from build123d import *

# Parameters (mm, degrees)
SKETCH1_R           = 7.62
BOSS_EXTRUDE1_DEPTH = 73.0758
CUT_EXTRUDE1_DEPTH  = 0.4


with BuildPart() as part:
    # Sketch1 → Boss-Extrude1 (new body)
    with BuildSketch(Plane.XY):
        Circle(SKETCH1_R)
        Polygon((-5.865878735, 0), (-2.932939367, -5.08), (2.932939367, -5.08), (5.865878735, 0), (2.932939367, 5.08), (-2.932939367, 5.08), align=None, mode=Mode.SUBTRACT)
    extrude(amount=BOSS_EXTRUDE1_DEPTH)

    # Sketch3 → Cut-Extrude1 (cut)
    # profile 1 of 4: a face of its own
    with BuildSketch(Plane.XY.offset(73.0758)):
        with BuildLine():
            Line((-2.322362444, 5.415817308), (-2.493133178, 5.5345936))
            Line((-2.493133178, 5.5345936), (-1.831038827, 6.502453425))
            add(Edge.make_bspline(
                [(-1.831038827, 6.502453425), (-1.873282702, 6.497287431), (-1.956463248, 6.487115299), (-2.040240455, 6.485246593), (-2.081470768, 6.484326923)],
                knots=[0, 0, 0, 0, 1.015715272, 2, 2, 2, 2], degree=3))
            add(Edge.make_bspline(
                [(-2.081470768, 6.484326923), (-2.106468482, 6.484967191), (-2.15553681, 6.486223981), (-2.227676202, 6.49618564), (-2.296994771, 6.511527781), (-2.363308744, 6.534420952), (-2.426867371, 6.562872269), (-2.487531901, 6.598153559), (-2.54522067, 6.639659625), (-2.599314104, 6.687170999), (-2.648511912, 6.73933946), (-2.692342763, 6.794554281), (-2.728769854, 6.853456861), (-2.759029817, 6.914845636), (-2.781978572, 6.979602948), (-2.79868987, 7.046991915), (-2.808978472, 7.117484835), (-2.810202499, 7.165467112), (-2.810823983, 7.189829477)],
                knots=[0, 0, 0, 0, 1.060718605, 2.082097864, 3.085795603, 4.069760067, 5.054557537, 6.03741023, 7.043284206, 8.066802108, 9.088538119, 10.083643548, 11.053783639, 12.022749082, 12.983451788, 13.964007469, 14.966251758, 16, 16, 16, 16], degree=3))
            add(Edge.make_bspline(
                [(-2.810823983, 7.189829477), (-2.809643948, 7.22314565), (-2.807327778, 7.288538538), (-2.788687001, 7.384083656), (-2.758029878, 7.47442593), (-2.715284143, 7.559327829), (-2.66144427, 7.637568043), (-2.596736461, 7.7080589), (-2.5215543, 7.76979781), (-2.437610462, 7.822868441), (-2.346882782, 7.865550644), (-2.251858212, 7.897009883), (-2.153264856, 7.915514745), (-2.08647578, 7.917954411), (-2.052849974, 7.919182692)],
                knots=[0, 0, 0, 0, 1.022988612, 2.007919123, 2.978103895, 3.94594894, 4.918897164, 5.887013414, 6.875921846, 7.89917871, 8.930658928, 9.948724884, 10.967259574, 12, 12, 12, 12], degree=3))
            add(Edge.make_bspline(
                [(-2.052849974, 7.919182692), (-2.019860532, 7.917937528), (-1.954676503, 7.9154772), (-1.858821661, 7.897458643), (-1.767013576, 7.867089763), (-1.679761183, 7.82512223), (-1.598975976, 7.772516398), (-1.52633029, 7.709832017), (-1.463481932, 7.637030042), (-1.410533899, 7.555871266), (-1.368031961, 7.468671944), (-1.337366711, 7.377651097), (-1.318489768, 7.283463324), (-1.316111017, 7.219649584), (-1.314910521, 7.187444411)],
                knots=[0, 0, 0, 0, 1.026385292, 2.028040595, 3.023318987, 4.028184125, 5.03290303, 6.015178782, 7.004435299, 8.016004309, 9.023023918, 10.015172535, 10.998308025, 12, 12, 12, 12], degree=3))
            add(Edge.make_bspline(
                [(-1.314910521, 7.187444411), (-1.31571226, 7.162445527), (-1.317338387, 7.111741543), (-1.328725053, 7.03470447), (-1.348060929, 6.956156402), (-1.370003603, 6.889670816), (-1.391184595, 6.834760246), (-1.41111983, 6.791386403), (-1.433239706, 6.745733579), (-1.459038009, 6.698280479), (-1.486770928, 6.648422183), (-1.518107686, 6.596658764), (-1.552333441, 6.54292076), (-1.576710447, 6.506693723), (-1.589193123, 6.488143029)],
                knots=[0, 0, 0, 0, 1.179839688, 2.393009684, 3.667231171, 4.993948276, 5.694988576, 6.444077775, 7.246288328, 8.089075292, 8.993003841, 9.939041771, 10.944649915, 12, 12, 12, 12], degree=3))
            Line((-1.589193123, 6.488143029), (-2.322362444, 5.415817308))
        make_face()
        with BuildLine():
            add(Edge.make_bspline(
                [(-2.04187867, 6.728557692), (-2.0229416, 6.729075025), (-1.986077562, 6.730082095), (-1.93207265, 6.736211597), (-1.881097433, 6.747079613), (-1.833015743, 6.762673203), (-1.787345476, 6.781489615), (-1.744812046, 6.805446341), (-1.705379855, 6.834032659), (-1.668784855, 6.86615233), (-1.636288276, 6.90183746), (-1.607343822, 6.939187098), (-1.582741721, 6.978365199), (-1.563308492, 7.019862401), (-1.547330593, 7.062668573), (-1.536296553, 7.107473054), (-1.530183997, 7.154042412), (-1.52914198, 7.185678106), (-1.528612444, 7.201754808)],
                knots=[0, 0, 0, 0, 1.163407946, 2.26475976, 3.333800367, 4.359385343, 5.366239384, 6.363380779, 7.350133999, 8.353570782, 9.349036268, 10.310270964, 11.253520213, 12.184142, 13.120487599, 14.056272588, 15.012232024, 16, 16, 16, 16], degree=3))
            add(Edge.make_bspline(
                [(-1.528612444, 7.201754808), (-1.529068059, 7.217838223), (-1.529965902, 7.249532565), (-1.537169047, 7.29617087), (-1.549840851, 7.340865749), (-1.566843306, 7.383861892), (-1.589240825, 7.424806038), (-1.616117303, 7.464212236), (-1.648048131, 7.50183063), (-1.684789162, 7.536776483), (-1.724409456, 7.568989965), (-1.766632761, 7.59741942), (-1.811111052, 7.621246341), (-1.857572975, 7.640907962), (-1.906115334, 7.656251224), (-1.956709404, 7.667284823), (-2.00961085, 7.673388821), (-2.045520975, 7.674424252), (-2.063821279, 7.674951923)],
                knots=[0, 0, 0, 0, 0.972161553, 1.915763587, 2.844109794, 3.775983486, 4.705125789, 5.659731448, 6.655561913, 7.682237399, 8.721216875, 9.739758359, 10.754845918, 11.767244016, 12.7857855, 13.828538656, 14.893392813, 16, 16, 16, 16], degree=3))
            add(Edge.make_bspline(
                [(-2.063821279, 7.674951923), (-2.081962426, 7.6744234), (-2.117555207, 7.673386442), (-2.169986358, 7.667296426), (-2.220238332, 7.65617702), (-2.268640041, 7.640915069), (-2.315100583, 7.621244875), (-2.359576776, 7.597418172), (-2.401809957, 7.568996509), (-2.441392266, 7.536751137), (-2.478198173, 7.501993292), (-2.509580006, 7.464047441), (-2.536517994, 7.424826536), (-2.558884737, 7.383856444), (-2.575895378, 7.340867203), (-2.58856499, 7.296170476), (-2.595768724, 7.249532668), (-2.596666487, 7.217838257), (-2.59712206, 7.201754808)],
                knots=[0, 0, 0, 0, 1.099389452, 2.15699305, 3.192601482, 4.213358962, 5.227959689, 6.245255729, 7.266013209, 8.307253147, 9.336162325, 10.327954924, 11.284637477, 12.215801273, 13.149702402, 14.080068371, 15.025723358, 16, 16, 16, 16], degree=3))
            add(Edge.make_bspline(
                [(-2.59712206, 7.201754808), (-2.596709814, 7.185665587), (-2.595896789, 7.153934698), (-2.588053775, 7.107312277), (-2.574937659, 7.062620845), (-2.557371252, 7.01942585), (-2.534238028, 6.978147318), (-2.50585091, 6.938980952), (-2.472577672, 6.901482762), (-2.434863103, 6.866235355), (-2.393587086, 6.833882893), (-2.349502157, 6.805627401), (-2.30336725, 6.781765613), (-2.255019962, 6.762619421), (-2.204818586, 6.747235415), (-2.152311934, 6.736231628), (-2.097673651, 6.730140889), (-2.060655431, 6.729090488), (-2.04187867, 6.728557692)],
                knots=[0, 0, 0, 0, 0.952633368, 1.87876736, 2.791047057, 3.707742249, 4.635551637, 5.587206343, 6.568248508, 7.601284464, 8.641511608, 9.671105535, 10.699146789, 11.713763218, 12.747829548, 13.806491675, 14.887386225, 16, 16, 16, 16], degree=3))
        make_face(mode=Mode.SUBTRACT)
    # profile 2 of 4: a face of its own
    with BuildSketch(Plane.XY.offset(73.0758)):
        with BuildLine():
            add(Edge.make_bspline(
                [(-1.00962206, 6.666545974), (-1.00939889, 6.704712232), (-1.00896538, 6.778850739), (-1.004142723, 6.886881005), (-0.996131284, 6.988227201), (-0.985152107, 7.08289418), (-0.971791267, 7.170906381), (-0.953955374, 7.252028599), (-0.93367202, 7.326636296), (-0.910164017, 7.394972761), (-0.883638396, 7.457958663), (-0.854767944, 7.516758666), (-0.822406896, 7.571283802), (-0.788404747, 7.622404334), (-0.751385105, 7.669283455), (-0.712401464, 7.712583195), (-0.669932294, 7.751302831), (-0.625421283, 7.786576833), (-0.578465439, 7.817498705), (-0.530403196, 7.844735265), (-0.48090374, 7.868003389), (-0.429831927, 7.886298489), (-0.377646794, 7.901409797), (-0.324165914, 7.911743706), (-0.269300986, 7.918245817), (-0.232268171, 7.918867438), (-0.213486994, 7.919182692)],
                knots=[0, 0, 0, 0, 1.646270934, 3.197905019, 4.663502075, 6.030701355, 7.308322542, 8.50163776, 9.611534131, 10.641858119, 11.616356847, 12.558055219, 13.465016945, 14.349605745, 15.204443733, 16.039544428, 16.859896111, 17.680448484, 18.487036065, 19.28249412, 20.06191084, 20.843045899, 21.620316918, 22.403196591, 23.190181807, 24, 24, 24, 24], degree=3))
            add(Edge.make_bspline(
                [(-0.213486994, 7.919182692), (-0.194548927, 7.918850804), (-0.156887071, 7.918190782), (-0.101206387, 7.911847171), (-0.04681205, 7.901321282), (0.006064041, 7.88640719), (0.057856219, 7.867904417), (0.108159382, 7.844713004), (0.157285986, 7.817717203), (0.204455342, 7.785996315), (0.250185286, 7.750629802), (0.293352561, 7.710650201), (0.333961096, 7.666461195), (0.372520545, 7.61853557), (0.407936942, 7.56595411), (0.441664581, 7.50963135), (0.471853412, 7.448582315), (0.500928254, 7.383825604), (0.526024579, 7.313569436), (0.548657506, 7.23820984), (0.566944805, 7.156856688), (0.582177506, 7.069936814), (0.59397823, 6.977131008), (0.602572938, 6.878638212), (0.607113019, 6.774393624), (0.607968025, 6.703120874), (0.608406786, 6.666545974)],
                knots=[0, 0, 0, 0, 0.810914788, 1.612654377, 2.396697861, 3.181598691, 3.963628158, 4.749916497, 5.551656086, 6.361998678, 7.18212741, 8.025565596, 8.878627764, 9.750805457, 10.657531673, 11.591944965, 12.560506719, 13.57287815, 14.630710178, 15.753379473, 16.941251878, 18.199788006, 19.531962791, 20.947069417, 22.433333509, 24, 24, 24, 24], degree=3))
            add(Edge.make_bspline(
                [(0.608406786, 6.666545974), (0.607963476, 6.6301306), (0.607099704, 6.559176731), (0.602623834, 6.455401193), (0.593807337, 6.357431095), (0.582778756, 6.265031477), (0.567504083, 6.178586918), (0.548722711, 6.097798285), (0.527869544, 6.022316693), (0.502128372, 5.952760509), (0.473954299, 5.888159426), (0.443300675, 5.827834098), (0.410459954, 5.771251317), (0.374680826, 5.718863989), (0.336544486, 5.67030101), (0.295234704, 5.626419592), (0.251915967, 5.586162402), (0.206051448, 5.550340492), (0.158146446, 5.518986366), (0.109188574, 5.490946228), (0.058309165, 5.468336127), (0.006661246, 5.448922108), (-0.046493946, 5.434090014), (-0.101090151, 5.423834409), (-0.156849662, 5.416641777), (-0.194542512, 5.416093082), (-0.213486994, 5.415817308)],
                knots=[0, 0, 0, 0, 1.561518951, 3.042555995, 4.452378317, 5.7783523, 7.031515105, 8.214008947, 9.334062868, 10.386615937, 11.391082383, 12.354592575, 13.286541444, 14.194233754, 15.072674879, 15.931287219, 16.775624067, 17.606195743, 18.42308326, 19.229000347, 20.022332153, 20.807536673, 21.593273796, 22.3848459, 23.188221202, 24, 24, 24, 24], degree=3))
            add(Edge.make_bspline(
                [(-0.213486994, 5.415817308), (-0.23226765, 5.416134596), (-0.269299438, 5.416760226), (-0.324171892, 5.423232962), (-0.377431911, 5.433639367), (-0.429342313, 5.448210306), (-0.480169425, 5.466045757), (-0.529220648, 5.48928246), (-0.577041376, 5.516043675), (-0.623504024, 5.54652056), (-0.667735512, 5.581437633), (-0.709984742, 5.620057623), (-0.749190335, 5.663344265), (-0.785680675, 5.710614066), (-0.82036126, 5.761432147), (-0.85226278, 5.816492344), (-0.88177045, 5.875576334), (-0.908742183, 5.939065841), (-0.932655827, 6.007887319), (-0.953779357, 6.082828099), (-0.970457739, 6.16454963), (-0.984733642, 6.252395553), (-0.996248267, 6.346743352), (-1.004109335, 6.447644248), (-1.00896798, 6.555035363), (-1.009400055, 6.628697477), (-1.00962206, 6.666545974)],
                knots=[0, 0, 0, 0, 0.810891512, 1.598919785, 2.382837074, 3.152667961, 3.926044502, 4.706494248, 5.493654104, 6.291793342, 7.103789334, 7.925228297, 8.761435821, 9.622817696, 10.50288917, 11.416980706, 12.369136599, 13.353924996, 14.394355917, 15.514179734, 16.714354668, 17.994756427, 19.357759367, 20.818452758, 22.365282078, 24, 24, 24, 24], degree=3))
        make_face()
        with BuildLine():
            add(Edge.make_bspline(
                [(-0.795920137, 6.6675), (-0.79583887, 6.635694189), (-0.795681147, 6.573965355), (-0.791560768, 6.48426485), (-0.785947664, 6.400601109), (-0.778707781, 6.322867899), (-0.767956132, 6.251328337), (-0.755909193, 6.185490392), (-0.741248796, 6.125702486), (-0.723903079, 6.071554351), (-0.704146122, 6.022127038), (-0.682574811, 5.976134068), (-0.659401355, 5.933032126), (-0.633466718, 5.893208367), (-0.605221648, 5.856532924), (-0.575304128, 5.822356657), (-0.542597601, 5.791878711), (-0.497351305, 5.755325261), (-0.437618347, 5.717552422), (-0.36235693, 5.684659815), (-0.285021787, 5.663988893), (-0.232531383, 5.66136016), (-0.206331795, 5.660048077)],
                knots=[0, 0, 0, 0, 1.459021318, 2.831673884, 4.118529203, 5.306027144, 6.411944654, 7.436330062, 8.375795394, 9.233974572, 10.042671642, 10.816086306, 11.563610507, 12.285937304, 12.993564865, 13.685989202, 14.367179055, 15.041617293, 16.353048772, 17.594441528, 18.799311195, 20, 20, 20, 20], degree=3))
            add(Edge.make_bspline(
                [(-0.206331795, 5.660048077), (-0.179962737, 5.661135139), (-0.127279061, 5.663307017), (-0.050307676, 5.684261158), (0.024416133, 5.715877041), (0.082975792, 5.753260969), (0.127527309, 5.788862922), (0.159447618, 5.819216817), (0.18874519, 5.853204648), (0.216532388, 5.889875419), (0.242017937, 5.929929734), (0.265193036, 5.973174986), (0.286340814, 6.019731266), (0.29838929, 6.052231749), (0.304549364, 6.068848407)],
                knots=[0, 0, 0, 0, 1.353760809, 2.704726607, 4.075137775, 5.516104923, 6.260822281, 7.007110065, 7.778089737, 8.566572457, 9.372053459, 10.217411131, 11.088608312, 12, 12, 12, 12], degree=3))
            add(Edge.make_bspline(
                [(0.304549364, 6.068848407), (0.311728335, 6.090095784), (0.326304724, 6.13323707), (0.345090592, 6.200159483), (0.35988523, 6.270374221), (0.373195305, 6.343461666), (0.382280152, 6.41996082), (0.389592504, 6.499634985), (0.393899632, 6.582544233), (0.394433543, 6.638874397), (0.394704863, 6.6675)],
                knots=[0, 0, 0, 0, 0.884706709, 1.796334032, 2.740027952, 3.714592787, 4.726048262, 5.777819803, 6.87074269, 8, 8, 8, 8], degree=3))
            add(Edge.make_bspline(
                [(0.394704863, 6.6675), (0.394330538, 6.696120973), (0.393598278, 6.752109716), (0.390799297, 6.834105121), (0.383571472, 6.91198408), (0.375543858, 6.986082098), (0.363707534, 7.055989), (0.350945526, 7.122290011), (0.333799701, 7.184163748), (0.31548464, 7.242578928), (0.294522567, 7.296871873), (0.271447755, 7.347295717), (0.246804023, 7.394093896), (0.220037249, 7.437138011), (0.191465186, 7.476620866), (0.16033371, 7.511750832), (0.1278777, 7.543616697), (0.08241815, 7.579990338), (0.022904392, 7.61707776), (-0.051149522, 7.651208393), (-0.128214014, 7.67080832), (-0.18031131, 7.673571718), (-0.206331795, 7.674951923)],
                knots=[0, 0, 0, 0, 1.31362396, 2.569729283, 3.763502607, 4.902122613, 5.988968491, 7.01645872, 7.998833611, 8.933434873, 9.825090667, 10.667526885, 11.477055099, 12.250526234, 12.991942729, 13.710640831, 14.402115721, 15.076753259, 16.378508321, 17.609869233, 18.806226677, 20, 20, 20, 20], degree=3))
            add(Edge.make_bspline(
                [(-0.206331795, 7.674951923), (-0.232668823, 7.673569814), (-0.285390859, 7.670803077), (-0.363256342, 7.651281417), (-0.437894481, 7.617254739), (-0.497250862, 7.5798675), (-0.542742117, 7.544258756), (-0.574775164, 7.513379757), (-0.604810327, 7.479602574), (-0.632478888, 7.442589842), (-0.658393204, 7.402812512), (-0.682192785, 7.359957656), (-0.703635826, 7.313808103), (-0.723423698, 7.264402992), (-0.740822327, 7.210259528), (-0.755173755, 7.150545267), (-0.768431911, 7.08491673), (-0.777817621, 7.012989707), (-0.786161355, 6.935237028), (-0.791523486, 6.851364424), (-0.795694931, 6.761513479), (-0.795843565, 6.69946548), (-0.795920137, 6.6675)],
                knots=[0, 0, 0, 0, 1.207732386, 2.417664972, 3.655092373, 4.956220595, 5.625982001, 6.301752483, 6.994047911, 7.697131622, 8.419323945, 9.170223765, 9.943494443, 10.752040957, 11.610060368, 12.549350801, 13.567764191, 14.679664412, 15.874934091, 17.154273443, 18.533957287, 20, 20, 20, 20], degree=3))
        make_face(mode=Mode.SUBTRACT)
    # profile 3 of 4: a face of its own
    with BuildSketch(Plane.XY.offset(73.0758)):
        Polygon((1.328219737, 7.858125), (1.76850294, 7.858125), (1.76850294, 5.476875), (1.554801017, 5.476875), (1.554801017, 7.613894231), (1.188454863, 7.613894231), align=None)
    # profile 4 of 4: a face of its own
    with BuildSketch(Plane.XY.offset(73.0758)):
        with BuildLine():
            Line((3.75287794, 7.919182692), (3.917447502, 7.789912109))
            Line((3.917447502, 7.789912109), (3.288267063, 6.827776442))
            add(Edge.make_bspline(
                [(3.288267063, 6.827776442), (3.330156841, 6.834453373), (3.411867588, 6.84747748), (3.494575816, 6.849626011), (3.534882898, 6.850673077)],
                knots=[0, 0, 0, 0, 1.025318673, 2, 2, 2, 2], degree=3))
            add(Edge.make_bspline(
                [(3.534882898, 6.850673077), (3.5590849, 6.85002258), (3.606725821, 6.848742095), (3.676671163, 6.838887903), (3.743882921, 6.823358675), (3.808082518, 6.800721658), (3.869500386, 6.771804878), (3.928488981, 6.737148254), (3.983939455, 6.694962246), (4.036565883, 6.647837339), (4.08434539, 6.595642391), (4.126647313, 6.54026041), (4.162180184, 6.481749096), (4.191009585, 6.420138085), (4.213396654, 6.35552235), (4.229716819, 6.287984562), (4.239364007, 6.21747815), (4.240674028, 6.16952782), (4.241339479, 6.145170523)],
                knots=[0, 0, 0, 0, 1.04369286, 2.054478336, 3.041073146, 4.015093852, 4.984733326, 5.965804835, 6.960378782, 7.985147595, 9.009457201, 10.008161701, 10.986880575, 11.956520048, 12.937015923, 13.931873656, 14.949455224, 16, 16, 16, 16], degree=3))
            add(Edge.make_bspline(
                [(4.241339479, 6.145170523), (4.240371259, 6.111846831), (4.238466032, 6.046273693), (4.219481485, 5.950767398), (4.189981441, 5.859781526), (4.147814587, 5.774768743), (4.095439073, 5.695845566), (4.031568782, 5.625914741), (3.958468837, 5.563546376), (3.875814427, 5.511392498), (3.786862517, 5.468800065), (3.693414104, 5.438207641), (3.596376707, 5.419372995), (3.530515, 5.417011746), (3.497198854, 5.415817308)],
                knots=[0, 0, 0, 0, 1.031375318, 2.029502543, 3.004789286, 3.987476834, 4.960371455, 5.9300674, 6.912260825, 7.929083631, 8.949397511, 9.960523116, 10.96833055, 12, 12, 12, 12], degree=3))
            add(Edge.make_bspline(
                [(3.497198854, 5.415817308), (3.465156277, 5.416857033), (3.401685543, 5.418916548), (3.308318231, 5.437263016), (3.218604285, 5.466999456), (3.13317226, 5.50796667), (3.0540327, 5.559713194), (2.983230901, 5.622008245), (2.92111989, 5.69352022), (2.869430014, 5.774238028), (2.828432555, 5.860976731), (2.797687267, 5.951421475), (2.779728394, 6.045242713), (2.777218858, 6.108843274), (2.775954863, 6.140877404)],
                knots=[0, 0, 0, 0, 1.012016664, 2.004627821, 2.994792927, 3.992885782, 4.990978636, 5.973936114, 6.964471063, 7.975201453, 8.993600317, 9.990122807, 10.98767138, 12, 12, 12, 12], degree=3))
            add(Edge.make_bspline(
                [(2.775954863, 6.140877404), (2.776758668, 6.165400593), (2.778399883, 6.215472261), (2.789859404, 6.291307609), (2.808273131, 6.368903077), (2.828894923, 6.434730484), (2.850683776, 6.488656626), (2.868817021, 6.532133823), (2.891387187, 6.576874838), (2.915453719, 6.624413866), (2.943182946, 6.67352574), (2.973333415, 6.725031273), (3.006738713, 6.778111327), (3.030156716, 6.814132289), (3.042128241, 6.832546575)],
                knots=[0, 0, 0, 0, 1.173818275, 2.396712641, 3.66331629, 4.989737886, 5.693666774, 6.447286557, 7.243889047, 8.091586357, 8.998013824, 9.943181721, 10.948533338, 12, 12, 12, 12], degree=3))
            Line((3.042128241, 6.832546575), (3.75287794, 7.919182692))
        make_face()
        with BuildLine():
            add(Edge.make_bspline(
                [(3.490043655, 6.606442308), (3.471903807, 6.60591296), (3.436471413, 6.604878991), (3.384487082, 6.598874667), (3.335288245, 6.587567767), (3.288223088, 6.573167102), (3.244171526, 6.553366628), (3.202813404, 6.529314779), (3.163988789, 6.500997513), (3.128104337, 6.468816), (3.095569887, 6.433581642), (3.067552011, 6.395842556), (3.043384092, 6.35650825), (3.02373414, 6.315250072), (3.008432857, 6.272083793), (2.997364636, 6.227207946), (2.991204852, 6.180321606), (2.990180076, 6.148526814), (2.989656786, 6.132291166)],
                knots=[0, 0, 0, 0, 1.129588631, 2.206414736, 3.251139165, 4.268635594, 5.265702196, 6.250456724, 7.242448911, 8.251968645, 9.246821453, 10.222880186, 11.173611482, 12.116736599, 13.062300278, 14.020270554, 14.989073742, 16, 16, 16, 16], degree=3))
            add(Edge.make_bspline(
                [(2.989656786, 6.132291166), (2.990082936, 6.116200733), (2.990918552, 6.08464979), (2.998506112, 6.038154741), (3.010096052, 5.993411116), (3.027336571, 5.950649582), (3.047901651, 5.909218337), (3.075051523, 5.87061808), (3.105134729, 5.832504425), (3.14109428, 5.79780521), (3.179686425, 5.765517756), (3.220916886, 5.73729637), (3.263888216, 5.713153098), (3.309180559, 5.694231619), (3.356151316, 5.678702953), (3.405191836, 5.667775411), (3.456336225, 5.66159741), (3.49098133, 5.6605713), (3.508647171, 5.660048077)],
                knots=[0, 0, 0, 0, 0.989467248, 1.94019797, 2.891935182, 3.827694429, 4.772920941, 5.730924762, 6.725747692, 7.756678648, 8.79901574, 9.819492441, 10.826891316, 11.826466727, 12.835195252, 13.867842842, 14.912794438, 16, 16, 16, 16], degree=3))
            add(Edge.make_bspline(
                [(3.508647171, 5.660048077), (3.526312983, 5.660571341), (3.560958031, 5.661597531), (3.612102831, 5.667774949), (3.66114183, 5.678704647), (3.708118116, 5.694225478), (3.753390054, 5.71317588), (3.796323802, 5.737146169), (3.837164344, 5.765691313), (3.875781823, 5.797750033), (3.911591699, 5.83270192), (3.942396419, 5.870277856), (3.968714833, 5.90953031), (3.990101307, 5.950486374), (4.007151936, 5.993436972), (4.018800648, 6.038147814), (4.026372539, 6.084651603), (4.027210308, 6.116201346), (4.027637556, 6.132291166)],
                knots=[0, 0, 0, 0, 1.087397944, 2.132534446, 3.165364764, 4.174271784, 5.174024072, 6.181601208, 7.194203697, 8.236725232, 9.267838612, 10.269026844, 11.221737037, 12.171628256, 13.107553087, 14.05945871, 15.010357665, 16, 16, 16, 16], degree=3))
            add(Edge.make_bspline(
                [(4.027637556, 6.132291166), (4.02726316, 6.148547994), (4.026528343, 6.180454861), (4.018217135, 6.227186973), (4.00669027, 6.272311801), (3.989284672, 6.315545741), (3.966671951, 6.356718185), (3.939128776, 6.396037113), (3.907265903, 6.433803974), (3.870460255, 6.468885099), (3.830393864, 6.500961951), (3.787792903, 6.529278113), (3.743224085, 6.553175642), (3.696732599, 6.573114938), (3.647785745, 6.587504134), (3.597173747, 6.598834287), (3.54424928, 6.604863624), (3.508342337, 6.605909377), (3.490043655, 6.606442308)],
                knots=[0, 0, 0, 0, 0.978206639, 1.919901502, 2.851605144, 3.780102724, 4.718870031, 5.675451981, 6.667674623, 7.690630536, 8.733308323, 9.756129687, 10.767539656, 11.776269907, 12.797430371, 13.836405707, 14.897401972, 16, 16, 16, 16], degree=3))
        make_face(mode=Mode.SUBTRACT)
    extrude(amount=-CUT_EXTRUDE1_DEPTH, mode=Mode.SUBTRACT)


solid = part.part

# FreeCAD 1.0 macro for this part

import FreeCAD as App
import Part
import Sketcher
from FreeCAD import Vector
Q = App.Units.Quantity

doc = App.newDocument("Part")
body = doc.addObject("PartDesign::Body", "Body")

# Sketch on XY plane
sketch1 = body.newObject("Sketcher::SketchObject", "Sketch")
sketch1.AttachmentSupport = (doc.getObject("XY_Plane"), [""])
sketch1.MapMode = "FlatFace"
sketch1.addGeometry([
    Part.Circle(Vector(0, 0, 0), Vector(0, 0, 1), 7.62),  # 0
    Part.LineSegment(Vector(-2.932939, -5.08, 0), Vector(-5.865879, 0, 0)),  # 1
    Part.LineSegment(Vector(-5.865879, 0, 0), Vector(-2.932939, 5.08, 0)),  # 2
    Part.LineSegment(Vector(-2.932939, 5.08, 0), Vector(2.932939, 5.08, 0)),  # 3
    Part.LineSegment(Vector(2.932939, 5.08, 0), Vector(5.865879, 0, 0)),  # 4
    Part.LineSegment(Vector(5.865879, 0, 0), Vector(2.932939, -5.08, 0)),  # 5
    Part.LineSegment(Vector(2.932939, -5.08, 0), Vector(-2.932939, -5.08, 0)),  # 6
], False)
sketch1.addConstraint([
    Sketcher.Constraint("Coincident", 1, 2, 2, 1),
    Sketcher.Constraint("Coincident", 2, 2, 3, 1),
    Sketcher.Constraint("Coincident", 3, 2, 4, 1),
    Sketcher.Constraint("Coincident", 4, 2, 5, 1),
    Sketcher.Constraint("Coincident", 5, 2, 6, 1),
    Sketcher.Constraint("Coincident", 6, 2, 1, 1),
    Sketcher.Constraint("Horizontal", 3),
    Sketcher.Constraint("Horizontal", 6),
    Sketcher.Constraint("Coincident", 0, 3, -1, 1),
    Sketcher.Constraint("Symmetric", 1, 2, 4, 2, -1, 1),
    Sketcher.Constraint("Symmetric", 2, 2, 5, 2, -1, 1),
    Sketcher.Constraint("PointOnObject", 1, 2, -1),
    Sketcher.Constraint("Parallel", 1, 4),
    Sketcher.Constraint("Vertical", 3, 2, 5, 2),
    Sketcher.Constraint("Diameter", 0, Q("0.6 in")),
    Sketcher.Constraint("Angle", 1, Q("120 deg")),
    Sketcher.Constraint("DistanceY", -1, 1, 2, 2, Q("0.2 in")),
    Sketcher.Constraint("DistanceX", 3, 1, 3, 2, Q("5.865879 mm")),
])
pad1 = body.newObject("PartDesign::Pad", "Pad")
pad1.Profile = sketch1
pad1.Length = Q("2.877 in")

# Sketch on XY plane
sketch2 = body.newObject("Sketcher::SketchObject", "Sketch001")
sketch2.AttachmentSupport = (doc.getObject("XY_Plane"), [""])
sketch2.MapMode = "FlatFace"
sketch2.AttachmentOffset = App.Placement(Vector(0, 0, 2.877 * 25.4), App.Rotation())
sketch2.addGeometry([
    Part.LineSegment(Vector(-2.493133, 5.534594, 0), Vector(-2.322362, 5.415817, 0)),  # 0
    Part.LineSegment(Vector(-2.322362, 5.415817, 0), Vector(-1.589193, 6.488143, 0)),  # 1
    Part.BSplineCurve([Vector(-1.314911, 7.187444, 0), Vector(-1.315712, 7.162446, 0), Vector(-1.317338, 7.111742, 0), Vector(-1.328725, 7.034704, 0), Vector(-1.348061, 6.956156, 0), Vector(-1.370004, 6.889671, 0), Vector(-1.391185, 6.83476, 0), Vector(-1.41112, 6.791386, 0), Vector(-1.43324, 6.745734, 0), Vector(-1.459038, 6.69828, 0), Vector(-1.486771, 6.648422, 0), Vector(-1.518108, 6.596659, 0), Vector(-1.552333, 6.542921, 0), Vector(-1.57671, 6.506694, 0), Vector(-1.589193, 6.488143, 0)], [4, 1, 1, 1, 1, 1, 1, 1, 1, 1, 1, 1, 4], [0, 1.179839688, 2.393009684, 3.667231171, 4.993948276, 5.694988576, 6.444077775, 7.246288328, 8.089075292, 8.993003841, 9.939041771, 10.944649915, 12], False, 3, [1, 1, 1, 1, 1, 1, 1, 1, 1, 1, 1, 1, 1, 1, 1], False),  # 2
    Part.BSplineCurve([Vector(-2.05285, 7.919183, 0), Vector(-2.019861, 7.917938, 0), Vector(-1.954677, 7.915477, 0), Vector(-1.858822, 7.897459, 0), Vector(-1.767014, 7.86709, 0), Vector(-1.679761, 7.825122, 0), Vector(-1.598976, 7.772516, 0), Vector(-1.52633, 7.709832, 0), Vector(-1.463482, 7.63703, 0), Vector(-1.410534, 7.555871, 0), Vector(-1.368032, 7.468672, 0), Vector(-1.337367, 7.377651, 0), Vector(-1.31849, 7.283463, 0), Vector(-1.316111, 7.21965, 0), Vector(-1.314911, 7.187444, 0)], [4, 1, 1, 1, 1, 1, 1, 1, 1, 1, 1, 1, 4], [0, 1.026385292, 2.028040595, 3.023318987, 4.028184125, 5.03290303, 6.015178782, 7.004435299, 8.016004309, 9.023023918, 10.015172535, 10.998308025, 12], False, 3, [1, 1, 1, 1, 1, 1, 1, 1, 1, 1, 1, 1, 1, 1, 1], False),  # 3
    Part.BSplineCurve([Vector(-2.810824, 7.189829, 0), Vector(-2.809644, 7.223146, 0), Vector(-2.807328, 7.288539, 0), Vector(-2.788687, 7.384084, 0), Vector(-2.75803, 7.474426, 0), Vector(-2.715284, 7.559328, 0), Vector(-2.661444, 7.637568, 0), Vector(-2.596736, 7.708059, 0), Vector(-2.521554, 7.769798, 0), Vector(-2.43761, 7.822868, 0), Vector(-2.346883, 7.865551, 0), Vector(-2.251858, 7.89701, 0), Vector(-2.153265, 7.915515, 0), Vector(-2.086476, 7.917954, 0), Vector(-2.05285, 7.919183, 0)], [4, 1, 1, 1, 1, 1, 1, 1, 1, 1, 1, 1, 4], [0, 1.022988612, 2.007919123, 2.978103895, 3.94594894, 4.918897164, 5.887013414, 6.875921846, 7.89917871, 8.930658928, 9.948724884, 10.967259574, 12], False, 3, [1, 1, 1, 1, 1, 1, 1, 1, 1, 1, 1, 1, 1, 1, 1], False),  # 4
    Part.BSplineCurve([Vector(-2.081471, 6.484327, 0), Vector(-2.106468, 6.484967, 0), Vector(-2.155537, 6.486224, 0), Vector(-2.227676, 6.496186, 0), Vector(-2.296995, 6.511528, 0), Vector(-2.363309, 6.534421, 0), Vector(-2.426867, 6.562872, 0), Vector(-2.487532, 6.598154, 0), Vector(-2.545221, 6.63966, 0), Vector(-2.599314, 6.687171, 0), Vector(-2.648512, 6.739339, 0), Vector(-2.692343, 6.794554, 0), Vector(-2.72877, 6.853457, 0), Vector(-2.75903, 6.914846, 0), Vector(-2.781979, 6.979603, 0), Vector(-2.79869, 7.046992, 0), Vector(-2.808978, 7.117485, 0), Vector(-2.810202, 7.165467, 0), Vector(-2.810824, 7.189829, 0)], [4, 1, 1, 1, 1, 1, 1, 1, 1, 1, 1, 1, 1, 1, 1, 1, 4], [0, 1.060718605, 2.082097864, 3.085795603, 4.069760067, 5.054557537, 6.03741023, 7.043284206, 8.066802108, 9.088538119, 10.083643548, 11.053783639, 12.022749082, 12.983451788, 13.964007469, 14.966251758, 16], False, 3, [1, 1, 1, 1, 1, 1, 1, 1, 1, 1, 1, 1, 1, 1, 1, 1, 1, 1, 1], False),  # 5
    Part.BSplineCurve([Vector(-1.831039, 6.502453, 0), Vector(-1.873283, 6.497287, 0), Vector(-1.956463, 6.487115, 0), Vector(-2.04024, 6.485247, 0), Vector(-2.081471, 6.484327, 0)], [4, 1, 4], [0, 1.015715272, 2], False, 3, [1, 1, 1, 1, 1], False),  # 6
    Part.LineSegment(Vector(-1.831039, 6.502453, 0), Vector(-2.493133, 5.534594, 0)),  # 7
    Part.BSplineCurve([Vector(-2.597122, 7.201755, 0), Vector(-2.59671, 7.185666, 0), Vector(-2.595897, 7.153935, 0), Vector(-2.588054, 7.107312, 0), Vector(-2.574938, 7.062621, 0), Vector(-2.557371, 7.019426, 0), Vector(-2.534238, 6.978147, 0), Vector(-2.505851, 6.938981, 0), Vector(-2.472578, 6.901483, 0), Vector(-2.434863, 6.866235, 0), Vector(-2.393587, 6.833883, 0), Vector(-2.349502, 6.805627, 0), Vector(-2.303367, 6.781766, 0), Vector(-2.25502, 6.762619, 0), Vector(-2.204819, 6.747235, 0), Vector(-2.152312, 6.736232, 0), Vector(-2.097674, 6.730141, 0), Vector(-2.060655, 6.72909, 0), Vector(-2.041879, 6.728558, 0)], [4, 1, 1, 1, 1, 1, 1, 1, 1, 1, 1, 1, 1, 1, 1, 1, 4], [0, 0.952633368, 1.87876736, 2.791047057, 3.707742249, 4.635551637, 5.587206343, 6.568248508, 7.601284464, 8.641511608, 9.671105535, 10.699146789, 11.713763218, 12.747829548, 13.806491675, 14.887386225, 16], False, 3, [1, 1, 1, 1, 1, 1, 1, 1, 1, 1, 1, 1, 1, 1, 1, 1, 1, 1, 1], False),  # 8
    Part.BSplineCurve([Vector(-2.063821, 7.674952, 0), Vector(-2.081962, 7.674423, 0), Vector(-2.117555, 7.673386, 0), Vector(-2.169986, 7.667296, 0), Vector(-2.220238, 7.656177, 0), Vector(-2.26864, 7.640915, 0), Vector(-2.315101, 7.621245, 0), Vector(-2.359577, 7.597418, 0), Vector(-2.40181, 7.568997, 0), Vector(-2.441392, 7.536751, 0), Vector(-2.478198, 7.501993, 0), Vector(-2.50958, 7.464047, 0), Vector(-2.536518, 7.424827, 0), Vector(-2.558885, 7.383856, 0), Vector(-2.575895, 7.340867, 0), Vector(-2.588565, 7.29617, 0), Vector(-2.595769, 7.249533, 0), Vector(-2.596666, 7.217838, 0), Vector(-2.597122, 7.201755, 0)], [4, 1, 1, 1, 1, 1, 1, 1, 1, 1, 1, 1, 1, 1, 1, 1, 4], [0, 1.099389452, 2.15699305, 3.192601482, 4.213358962, 5.227959689, 6.245255729, 7.266013209, 8.307253147, 9.336162325, 10.327954924, 11.284637477, 12.215801273, 13.149702402, 14.080068371, 15.025723358, 16], False, 3, [1, 1, 1, 1, 1, 1, 1, 1, 1, 1, 1, 1, 1, 1, 1, 1, 1, 1, 1], False),  # 9
    Part.BSplineCurve([Vector(-1.528612, 7.201755, 0), Vector(-1.529068, 7.217838, 0), Vector(-1.529966, 7.249533, 0), Vector(-1.537169, 7.296171, 0), Vector(-1.549841, 7.340866, 0), Vector(-1.566843, 7.383862, 0), Vector(-1.589241, 7.424806, 0), Vector(-1.616117, 7.464212, 0), Vector(-1.648048, 7.501831, 0), Vector(-1.684789, 7.536776, 0), Vector(-1.724409, 7.56899, 0), Vector(-1.766633, 7.597419, 0), Vector(-1.811111, 7.621246, 0), Vector(-1.857573, 7.640908, 0), Vector(-1.906115, 7.656251, 0), Vector(-1.956709, 7.667285, 0), Vector(-2.009611, 7.673389, 0), Vector(-2.045521, 7.674424, 0), Vector(-2.063821, 7.674952, 0)], [4, 1, 1, 1, 1, 1, 1, 1, 1, 1, 1, 1, 1, 1, 1, 1, 4], [0, 0.972161553, 1.915763587, 2.844109794, 3.775983486, 4.705125789, 5.659731448, 6.655561913, 7.682237399, 8.721216875, 9.739758359, 10.754845918, 11.767244016, 12.7857855, 13.828538656, 14.893392813, 16], False, 3, [1, 1, 1, 1, 1, 1, 1, 1, 1, 1, 1, 1, 1, 1, 1, 1, 1, 1, 1], False),  # 10
    Part.BSplineCurve([Vector(-2.041879, 6.728558, 0), Vector(-2.022942, 6.729075, 0), Vector(-1.986078, 6.730082, 0), Vector(-1.932073, 6.736212, 0), Vector(-1.881097, 6.74708, 0), Vector(-1.833016, 6.762673, 0), Vector(-1.787345, 6.78149, 0), Vector(-1.744812, 6.805446, 0), Vector(-1.70538, 6.834033, 0), Vector(-1.668785, 6.866152, 0), Vector(-1.636288, 6.901837, 0), Vector(-1.607344, 6.939187, 0), Vector(-1.582742, 6.978365, 0), Vector(-1.563308, 7.019862, 0), Vector(-1.547331, 7.062669, 0), Vector(-1.536297, 7.107473, 0), Vector(-1.530184, 7.154042, 0), Vector(-1.529142, 7.185678, 0), Vector(-1.528612, 7.201755, 0)], [4, 1, 1, 1, 1, 1, 1, 1, 1, 1, 1, 1, 1, 1, 1, 1, 4], [0, 1.163407946, 2.26475976, 3.333800367, 4.359385343, 5.366239384, 6.363380779, 7.350133999, 8.353570782, 9.349036268, 10.310270964, 11.253520213, 12.184142, 13.120487599, 14.056272588, 15.012232024, 16], False, 3, [1, 1, 1, 1, 1, 1, 1, 1, 1, 1, 1, 1, 1, 1, 1, 1, 1, 1, 1], False),  # 11
    Part.BSplineCurve([Vector(-1.009622, 6.666546, 0), Vector(-1.009399, 6.704712, 0), Vector(-1.008965, 6.778851, 0), Vector(-1.004143, 6.886881, 0), Vector(-0.996131, 6.988227, 0), Vector(-0.985152, 7.082894, 0), Vector(-0.971791, 7.170906, 0), Vector(-0.953955, 7.252029, 0), Vector(-0.933672, 7.326636, 0), Vector(-0.910164, 7.394973, 0), Vector(-0.883638, 7.457959, 0), Vector(-0.854768, 7.516759, 0), Vector(-0.822407, 7.571284, 0), Vector(-0.788405, 7.622404, 0), Vector(-0.751385, 7.669283, 0), Vector(-0.712401, 7.712583, 0), Vector(-0.669932, 7.751303, 0), Vector(-0.625421, 7.786577, 0), Vector(-0.578465, 7.817499, 0), Vector(-0.530403, 7.844735, 0), Vector(-0.480904, 7.868003, 0), Vector(-0.429832, 7.886298, 0), Vector(-0.377647, 7.90141, 0), Vector(-0.324166, 7.911744, 0), Vector(-0.269301, 7.918246, 0), Vector(-0.232268, 7.918867, 0), Vector(-0.213487, 7.919183, 0)], [4, 1, 1, 1, 1, 1, 1, 1, 1, 1, 1, 1, 1, 1, 1, 1, 1, 1, 1, 1, 1, 1, 1, 1, 4], [0, 1.646270934, 3.197905019, 4.663502075, 6.030701355, 7.308322542, 8.50163776, 9.611534131, 10.641858119, 11.616356847, 12.558055219, 13.465016945, 14.349605745, 15.204443733, 16.039544428, 16.859896111, 17.680448484, 18.487036065, 19.28249412, 20.06191084, 20.843045899, 21.620316918, 22.403196591, 23.190181807, 24], False, 3, [1, 1, 1, 1, 1, 1, 1, 1, 1, 1, 1, 1, 1, 1, 1, 1, 1, 1, 1, 1, 1, 1, 1, 1, 1, 1, 1], False),  # 12
    Part.BSplineCurve([Vector(-0.213487, 5.415817, 0), Vector(-0.232268, 5.416135, 0), Vector(-0.269299, 5.41676, 0), Vector(-0.324172, 5.423233, 0), Vector(-0.377432, 5.433639, 0), Vector(-0.429342, 5.44821, 0), Vector(-0.480169, 5.466046, 0), Vector(-0.529221, 5.489282, 0), Vector(-0.577041, 5.516044, 0), Vector(-0.623504, 5.546521, 0), Vector(-0.667736, 5.581438, 0), Vector(-0.709985, 5.620058, 0), Vector(-0.74919, 5.663344, 0), Vector(-0.785681, 5.710614, 0), Vector(-0.820361, 5.761432, 0), Vector(-0.852263, 5.816492, 0), Vector(-0.88177, 5.875576, 0), Vector(-0.908742, 5.939066, 0), Vector(-0.932656, 6.007887, 0), Vector(-0.953779, 6.082828, 0), Vector(-0.970458, 6.16455, 0), Vector(-0.984734, 6.252396, 0), Vector(-0.996248, 6.346743, 0), Vector(-1.004109, 6.447644, 0), Vector(-1.008968, 6.555035, 0), Vector(-1.0094, 6.628697, 0), Vector(-1.009622, 6.666546, 0)], [4, 1, 1, 1, 1, 1, 1, 1, 1, 1, 1, 1, 1, 1, 1, 1, 1, 1, 1, 1, 1, 1, 1, 1, 4], [0, 0.810891512, 1.598919785, 2.382837074, 3.152667961, 3.926044502, 4.706494248, 5.493654104, 6.291793342, 7.103789334, 7.925228297, 8.761435821, 9.622817696, 10.50288917, 11.416980706, 12.369136599, 13.353924996, 14.394355917, 15.514179734, 16.714354668, 17.994756427, 19.357759367, 20.818452758, 22.365282078, 24], False, 3, [1, 1, 1, 1, 1, 1, 1, 1, 1, 1, 1, 1, 1, 1, 1, 1, 1, 1, 1, 1, 1, 1, 1, 1, 1, 1, 1], False),  # 13
    Part.BSplineCurve([Vector(0.608407, 6.666546, 0), Vector(0.607963, 6.630131, 0), Vector(0.6071, 6.559177, 0), Vector(0.602624, 6.455401, 0), Vector(0.593807, 6.357431, 0), Vector(0.582779, 6.265031, 0), Vector(0.567504, 6.178587, 0), Vector(0.548723, 6.097798, 0), Vector(0.52787, 6.022317, 0), Vector(0.502128, 5.952761, 0), Vector(0.473954, 5.888159, 0), Vector(0.443301, 5.827834, 0), Vector(0.41046, 5.771251, 0), Vector(0.374681, 5.718864, 0), Vector(0.336544, 5.670301, 0), Vector(0.295235, 5.62642, 0), Vector(0.251916, 5.586162, 0), Vector(0.206051, 5.55034, 0), Vector(0.158146, 5.518986, 0), Vector(0.109189, 5.490946, 0), Vector(0.058309, 5.468336, 0), Vector(0.006661, 5.448922, 0), Vector(-0.046494, 5.43409, 0), Vector(-0.10109, 5.423834, 0), Vector(-0.15685, 5.416642, 0), Vector(-0.194543, 5.416093, 0), Vector(-0.213487, 5.415817, 0)], [4, 1, 1, 1, 1, 1, 1, 1, 1, 1, 1, 1, 1, 1, 1, 1, 1, 1, 1, 1, 1, 1, 1, 1, 4], [0, 1.561518951, 3.042555995, 4.452378317, 5.7783523, 7.031515105, 8.214008947, 9.334062868, 10.386615937, 11.391082383, 12.354592575, 13.286541444, 14.194233754, 15.072674879, 15.931287219, 16.775624067, 17.606195743, 18.42308326, 19.229000347, 20.022332153, 20.807536673, 21.593273796, 22.3848459, 23.188221202, 24], False, 3, [1, 1, 1, 1, 1, 1, 1, 1, 1, 1, 1, 1, 1, 1, 1, 1, 1, 1, 1, 1, 1, 1, 1, 1, 1, 1, 1], False),  # 14
    Part.BSplineCurve([Vector(-0.213487, 7.919183, 0), Vector(-0.194549, 7.918851, 0), Vector(-0.156887, 7.918191, 0), Vector(-0.101206, 7.911847, 0), Vector(-0.046812, 7.901321, 0), Vector(0.006064, 7.886407, 0), Vector(0.057856, 7.867904, 0), Vector(0.108159, 7.844713, 0), Vector(0.157286, 7.817717, 0), Vector(0.204455, 7.785996, 0), Vector(0.250185, 7.75063, 0), Vector(0.293353, 7.71065, 0), Vector(0.333961, 7.666461, 0), Vector(0.372521, 7.618536, 0), Vector(0.407937, 7.565954, 0), Vector(0.441665, 7.509631, 0), Vector(0.471853, 7.448582, 0), Vector(0.500928, 7.383826, 0), Vector(0.526025, 7.313569, 0), Vector(0.548658, 7.23821, 0), Vector(0.566945, 7.156857, 0), Vector(0.582178, 7.069937, 0), Vector(0.593978, 6.977131, 0), Vector(0.602573, 6.878638, 0), Vector(0.607113, 6.774394, 0), Vector(0.607968, 6.703121, 0), Vector(0.608407, 6.666546, 0)], [4, 1, 1, 1, 1, 1, 1, 1, 1, 1, 1, 1, 1, 1, 1, 1, 1, 1, 1, 1, 1, 1, 1, 1, 4], [0, 0.810914788, 1.612654377, 2.396697861, 3.181598691, 3.963628158, 4.749916497, 5.551656086, 6.361998678, 7.18212741, 8.025565596, 8.878627764, 9.750805457, 10.657531673, 11.591944965, 12.560506719, 13.57287815, 14.630710178, 15.753379473, 16.941251878, 18.199788006, 19.531962791, 20.947069417, 22.433333509, 24], False, 3, [1, 1, 1, 1, 1, 1, 1, 1, 1, 1, 1, 1, 1, 1, 1, 1, 1, 1, 1, 1, 1, 1, 1, 1, 1, 1, 1], False),  # 15
    Part.BSplineCurve([Vector(-0.206332, 7.674952, 0), Vector(-0.232669, 7.67357, 0), Vector(-0.285391, 7.670803, 0), Vector(-0.363256, 7.651281, 0), Vector(-0.437894, 7.617255, 0), Vector(-0.497251, 7.579867, 0), Vector(-0.542742, 7.544259, 0), Vector(-0.574775, 7.51338, 0), Vector(-0.60481, 7.479603, 0), Vector(-0.632479, 7.44259, 0), Vector(-0.658393, 7.402813, 0), Vector(-0.682193, 7.359958, 0), Vector(-0.703636, 7.313808, 0), Vector(-0.723424, 7.264403, 0), Vector(-0.740822, 7.21026, 0), Vector(-0.755174, 7.150545, 0), Vector(-0.768432, 7.084917, 0), Vector(-0.777818, 7.01299, 0), Vector(-0.786161, 6.935237, 0), Vector(-0.791523, 6.851364, 0), Vector(-0.795695, 6.761513, 0), Vector(-0.795844, 6.699465, 0), Vector(-0.79592, 6.6675, 0)], [4, 1, 1, 1, 1, 1, 1, 1, 1, 1, 1, 1, 1, 1, 1, 1, 1, 1, 1, 1, 4], [0, 1.207732386, 2.417664972, 3.655092373, 4.956220595, 5.625982001, 6.301752483, 6.994047911, 7.697131622, 8.419323945, 9.170223765, 9.943494443, 10.752040957, 11.610060368, 12.549350801, 13.567764191, 14.679664412, 15.874934091, 17.154273443, 18.533957287, 20], False, 3, [1, 1, 1, 1, 1, 1, 1, 1, 1, 1, 1, 1, 1, 1, 1, 1, 1, 1, 1, 1, 1, 1, 1], False),  # 16
    Part.BSplineCurve([Vector(0.394705, 6.6675, 0), Vector(0.394331, 6.696121, 0), Vector(0.393598, 6.75211, 0), Vector(0.390799, 6.834105, 0), Vector(0.383571, 6.911984, 0), Vector(0.375544, 6.986082, 0), Vector(0.363708, 7.055989, 0), Vector(0.350946, 7.12229, 0), Vector(0.3338, 7.184164, 0), Vector(0.315485, 7.242579, 0), Vector(0.294523, 7.296872, 0), Vector(0.271448, 7.347296, 0), Vector(0.246804, 7.394094, 0), Vector(0.220037, 7.437138, 0), Vector(0.191465, 7.476621, 0), Vector(0.160334, 7.511751, 0), Vector(0.127878, 7.543617, 0), Vector(0.082418, 7.57999, 0), Vector(0.022904, 7.617078, 0), Vector(-0.05115, 7.651208, 0), Vector(-0.128214, 7.670808, 0), Vector(-0.180311, 7.673572, 0), Vector(-0.206332, 7.674952, 0)], [4, 1, 1, 1, 1, 1, 1, 1, 1, 1, 1, 1, 1, 1, 1, 1, 1, 1, 1, 1, 4], [0, 1.31362396, 2.569729283, 3.763502607, 4.902122613, 5.988968491, 7.01645872, 7.998833611, 8.933434873, 9.825090667, 10.667526885, 11.477055099, 12.250526234, 12.991942729, 13.710640831, 14.402115721, 15.076753259, 16.378508321, 17.609869233, 18.806226677, 20], False, 3, [1, 1, 1, 1, 1, 1, 1, 1, 1, 1, 1, 1, 1, 1, 1, 1, 1, 1, 1, 1, 1, 1, 1], False),  # 17
    Part.BSplineCurve([Vector(0.304549, 6.068848, 0), Vector(0.311728, 6.090096, 0), Vector(0.326305, 6.133237, 0), Vector(0.345091, 6.200159, 0), Vector(0.359885, 6.270374, 0), Vector(0.373195, 6.343462, 0), Vector(0.38228, 6.419961, 0), Vector(0.389593, 6.499635, 0), Vector(0.3939, 6.582544, 0), Vector(0.394434, 6.638874, 0), Vector(0.394705, 6.6675, 0)], [4, 1, 1, 1, 1, 1, 1, 1, 4], [0, 0.884706709, 1.796334032, 2.740027952, 3.714592787, 4.726048262, 5.777819803, 6.87074269, 8], False, 3, [1, 1, 1, 1, 1, 1, 1, 1, 1, 1, 1], False),  # 18
    Part.BSplineCurve([Vector(-0.206332, 5.660048, 0), Vector(-0.179963, 5.661135, 0), Vector(-0.127279, 5.663307, 0), Vector(-0.050308, 5.684261, 0), Vector(0.024416, 5.715877, 0), Vector(0.082976, 5.753261, 0), Vector(0.127527, 5.788863, 0), Vector(0.159448, 5.819217, 0), Vector(0.188745, 5.853205, 0), Vector(0.216532, 5.889875, 0), Vector(0.242018, 5.92993, 0), Vector(0.265193, 5.973175, 0), Vector(0.286341, 6.019731, 0), Vector(0.298389, 6.052232, 0), Vector(0.304549, 6.068848, 0)], [4, 1, 1, 1, 1, 1, 1, 1, 1, 1, 1, 1, 4], [0, 1.353760809, 2.704726607, 4.075137775, 5.516104923, 6.260822281, 7.007110065, 7.778089737, 8.566572457, 9.372053459, 10.217411131, 11.088608312, 12], False, 3, [1, 1, 1, 1, 1, 1, 1, 1, 1, 1, 1, 1, 1, 1, 1], False),  # 19
    Part.BSplineCurve([Vector(-0.79592, 6.6675, 0), Vector(-0.795839, 6.635694, 0), Vector(-0.795681, 6.573965, 0), Vector(-0.791561, 6.484265, 0), Vector(-0.785948, 6.400601, 0), Vector(-0.778708, 6.322868, 0), Vector(-0.767956, 6.251328, 0), Vector(-0.755909, 6.18549, 0), Vector(-0.741249, 6.125702, 0), Vector(-0.723903, 6.071554, 0), Vector(-0.704146, 6.022127, 0), Vector(-0.682575, 5.976134, 0), Vector(-0.659401, 5.933032, 0), Vector(-0.633467, 5.893208, 0), Vector(-0.605222, 5.856533, 0), Vector(-0.575304, 5.822357, 0), Vector(-0.542598, 5.791879, 0), Vector(-0.497351, 5.755325, 0), Vector(-0.437618, 5.717552, 0), Vector(-0.362357, 5.68466, 0), Vector(-0.285022, 5.663989, 0), Vector(-0.232531, 5.66136, 0), Vector(-0.206332, 5.660048, 0)], [4, 1, 1, 1, 1, 1, 1, 1, 1, 1, 1, 1, 1, 1, 1, 1, 1, 1, 1, 1, 4], [0, 1.459021318, 2.831673884, 4.118529203, 5.306027144, 6.411944654, 7.436330062, 8.375795394, 9.233974572, 10.042671642, 10.816086306, 11.563610507, 12.285937304, 12.993564865, 13.685989202, 14.367179055, 15.041617293, 16.353048772, 17.594441528, 18.799311195, 20], False, 3, [1, 1, 1, 1, 1, 1, 1, 1, 1, 1, 1, 1, 1, 1, 1, 1, 1, 1, 1, 1, 1, 1, 1], False),  # 20
    Part.LineSegment(Vector(1.768503, 7.858125, 0), Vector(1.32822, 7.858125, 0)),  # 21
    Part.LineSegment(Vector(1.32822, 7.858125, 0), Vector(1.188455, 7.613894, 0)),  # 22
    Part.LineSegment(Vector(1.188455, 7.613894, 0), Vector(1.554801, 7.613894, 0)),  # 23
    Part.LineSegment(Vector(1.554801, 7.613894, 0), Vector(1.554801, 5.476875, 0)),  # 24
    Part.LineSegment(Vector(1.554801, 5.476875, 0), Vector(1.768503, 5.476875, 0)),  # 25
    Part.LineSegment(Vector(1.768503, 5.476875, 0), Vector(1.768503, 7.858125, 0)),  # 26
    Part.LineSegment(Vector(3.917448, 7.789912, 0), Vector(3.752878, 7.919183, 0)),  # 27
    Part.LineSegment(Vector(3.752878, 7.919183, 0), Vector(3.042128, 6.832547, 0)),  # 28
    Part.BSplineCurve([Vector(2.775955, 6.140877, 0), Vector(2.776759, 6.165401, 0), Vector(2.7784, 6.215472, 0), Vector(2.789859, 6.291308, 0), Vector(2.808273, 6.368903, 0), Vector(2.828895, 6.43473, 0), Vector(2.850684, 6.488657, 0), Vector(2.868817, 6.532134, 0), Vector(2.891387, 6.576875, 0), Vector(2.915454, 6.624414, 0), Vector(2.943183, 6.673526, 0), Vector(2.973333, 6.725031, 0), Vector(3.006739, 6.778111, 0), Vector(3.030157, 6.814132, 0), Vector(3.042128, 6.832547, 0)], [4, 1, 1, 1, 1, 1, 1, 1, 1, 1, 1, 1, 4], [0, 1.173818275, 2.396712641, 3.66331629, 4.989737886, 5.693666774, 6.447286557, 7.243889047, 8.091586357, 8.998013824, 9.943181721, 10.948533338, 12], False, 3, [1, 1, 1, 1, 1, 1, 1, 1, 1, 1, 1, 1, 1, 1, 1], False),  # 29
    Part.BSplineCurve([Vector(3.497199, 5.415817, 0), Vector(3.465156, 5.416857, 0), Vector(3.401686, 5.418917, 0), Vector(3.308318, 5.437263, 0), Vector(3.218604, 5.466999, 0), Vector(3.133172, 5.507967, 0), Vector(3.054033, 5.559713, 0), Vector(2.983231, 5.622008, 0), Vector(2.92112, 5.69352, 0), Vector(2.86943, 5.774238, 0), Vector(2.828433, 5.860977, 0), Vector(2.797687, 5.951421, 0), Vector(2.779728, 6.045243, 0), Vector(2.777219, 6.108843, 0), Vector(2.775955, 6.140877, 0)], [4, 1, 1, 1, 1, 1, 1, 1, 1, 1, 1, 1, 4], [0, 1.012016664, 2.004627821, 2.994792927, 3.992885782, 4.990978636, 5.973936114, 6.964471063, 7.975201453, 8.993600317, 9.990122807, 10.98767138, 12], False, 3, [1, 1, 1, 1, 1, 1, 1, 1, 1, 1, 1, 1, 1, 1, 1], False),  # 30
    Part.BSplineCurve([Vector(4.241339, 6.145171, 0), Vector(4.240371, 6.111847, 0), Vector(4.238466, 6.046274, 0), Vector(4.219481, 5.950767, 0), Vector(4.189981, 5.859782, 0), Vector(4.147815, 5.774769, 0), Vector(4.095439, 5.695846, 0), Vector(4.031569, 5.625915, 0), Vector(3.958469, 5.563546, 0), Vector(3.875814, 5.511392, 0), Vector(3.786863, 5.4688, 0), Vector(3.693414, 5.438208, 0), Vector(3.596377, 5.419373, 0), Vector(3.530515, 5.417012, 0), Vector(3.497199, 5.415817, 0)], [4, 1, 1, 1, 1, 1, 1, 1, 1, 1, 1, 1, 4], [0, 1.031375318, 2.029502543, 3.004789286, 3.987476834, 4.960371455, 5.9300674, 6.912260825, 7.929083631, 8.949397511, 9.960523116, 10.96833055, 12], False, 3, [1, 1, 1, 1, 1, 1, 1, 1, 1, 1, 1, 1, 1, 1, 1], False),  # 31
    Part.BSplineCurve([Vector(3.534883, 6.850673, 0), Vector(3.559085, 6.850023, 0), Vector(3.606726, 6.848742, 0), Vector(3.676671, 6.838888, 0), Vector(3.743883, 6.823359, 0), Vector(3.808083, 6.800722, 0), Vector(3.8695, 6.771805, 0), Vector(3.928489, 6.737148, 0), Vector(3.983939, 6.694962, 0), Vector(4.036566, 6.647837, 0), Vector(4.084345, 6.595642, 0), Vector(4.126647, 6.54026, 0), Vector(4.16218, 6.481749, 0), Vector(4.19101, 6.420138, 0), Vector(4.213397, 6.355522, 0), Vector(4.229717, 6.287985, 0), Vector(4.239364, 6.217478, 0), Vector(4.240674, 6.169528, 0), Vector(4.241339, 6.145171, 0)], [4, 1, 1, 1, 1, 1, 1, 1, 1, 1, 1, 1, 1, 1, 1, 1, 4], [0, 1.04369286, 2.054478336, 3.041073146, 4.015093852, 4.984733326, 5.965804835, 6.960378782, 7.985147595, 9.009457201, 10.008161701, 10.986880575, 11.956520048, 12.937015923, 13.931873656, 14.949455224, 16], False, 3, [1, 1, 1, 1, 1, 1, 1, 1, 1, 1, 1, 1, 1, 1, 1, 1, 1, 1, 1], False),  # 32
    Part.BSplineCurve([Vector(3.288267, 6.827776, 0), Vector(3.330157, 6.834453, 0), Vector(3.411868, 6.847477, 0), Vector(3.494576, 6.849626, 0), Vector(3.534883, 6.850673, 0)], [4, 1, 4], [0, 1.025318673, 2], False, 3, [1, 1, 1, 1, 1], False),  # 33
    Part.LineSegment(Vector(3.288267, 6.827776, 0), Vector(3.917448, 7.789912, 0)),  # 34
    Part.BSplineCurve([Vector(4.027638, 6.132291, 0), Vector(4.027263, 6.148548, 0), Vector(4.026528, 6.180455, 0), Vector(4.018217, 6.227187, 0), Vector(4.00669, 6.272312, 0), Vector(3.989285, 6.315546, 0), Vector(3.966672, 6.356718, 0), Vector(3.939129, 6.396037, 0), Vector(3.907266, 6.433804, 0), Vector(3.87046, 6.468885, 0), Vector(3.830394, 6.500962, 0), Vector(3.787793, 6.529278, 0), Vector(3.743224, 6.553176, 0), Vector(3.696733, 6.573115, 0), Vector(3.647786, 6.587504, 0), Vector(3.597174, 6.598834, 0), Vector(3.544249, 6.604864, 0), Vector(3.508342, 6.605909, 0), Vector(3.490044, 6.606442, 0)], [4, 1, 1, 1, 1, 1, 1, 1, 1, 1, 1, 1, 1, 1, 1, 1, 4], [0, 0.978206639, 1.919901502, 2.851605144, 3.780102724, 4.718870031, 5.675451981, 6.667674623, 7.690630536, 8.733308323, 9.756129687, 10.767539656, 11.776269907, 12.797430371, 13.836405707, 14.897401972, 16], False, 3, [1, 1, 1, 1, 1, 1, 1, 1, 1, 1, 1, 1, 1, 1, 1, 1, 1, 1, 1], False),  # 35
    Part.BSplineCurve([Vector(3.508647, 5.660048, 0), Vector(3.526313, 5.660571, 0), Vector(3.560958, 5.661598, 0), Vector(3.612103, 5.667775, 0), Vector(3.661142, 5.678705, 0), Vector(3.708118, 5.694225, 0), Vector(3.75339, 5.713176, 0), Vector(3.796324, 5.737146, 0), Vector(3.837164, 5.765691, 0), Vector(3.875782, 5.79775, 0), Vector(3.911592, 5.832702, 0), Vector(3.942396, 5.870278, 0), Vector(3.968715, 5.90953, 0), Vector(3.990101, 5.950486, 0), Vector(4.007152, 5.993437, 0), Vector(4.018801, 6.038148, 0), Vector(4.026373, 6.084652, 0), Vector(4.02721, 6.116201, 0), Vector(4.027638, 6.132291, 0)], [4, 1, 1, 1, 1, 1, 1, 1, 1, 1, 1, 1, 1, 1, 1, 1, 4], [0, 1.087397944, 2.132534446, 3.165364764, 4.174271784, 5.174024072, 6.181601208, 7.194203697, 8.236725232, 9.267838612, 10.269026844, 11.221737037, 12.171628256, 13.107553087, 14.05945871, 15.010357665, 16], False, 3, [1, 1, 1, 1, 1, 1, 1, 1, 1, 1, 1, 1, 1, 1, 1, 1, 1, 1, 1], False),  # 36
    Part.BSplineCurve([Vector(2.989657, 6.132291, 0), Vector(2.990083, 6.116201, 0), Vector(2.990919, 6.08465, 0), Vector(2.998506, 6.038155, 0), Vector(3.010096, 5.993411, 0), Vector(3.027337, 5.95065, 0), Vector(3.047902, 5.909218, 0), Vector(3.075052, 5.870618, 0), Vector(3.105135, 5.832504, 0), Vector(3.141094, 5.797805, 0), Vector(3.179686, 5.765518, 0), Vector(3.220917, 5.737296, 0), Vector(3.263888, 5.713153, 0), Vector(3.309181, 5.694232, 0), Vector(3.356151, 5.678703, 0), Vector(3.405192, 5.667775, 0), Vector(3.456336, 5.661597, 0), Vector(3.490981, 5.660571, 0), Vector(3.508647, 5.660048, 0)], [4, 1, 1, 1, 1, 1, 1, 1, 1, 1, 1, 1, 1, 1, 1, 1, 4], [0, 0.989467248, 1.94019797, 2.891935182, 3.827694429, 4.772920941, 5.730924762, 6.725747692, 7.756678648, 8.79901574, 9.819492441, 10.826891316, 11.826466727, 12.835195252, 13.867842842, 14.912794438, 16], False, 3, [1, 1, 1, 1, 1, 1, 1, 1, 1, 1, 1, 1, 1, 1, 1, 1, 1, 1, 1], False),  # 37
    Part.BSplineCurve([Vector(3.490044, 6.606442, 0), Vector(3.471904, 6.605913, 0), Vector(3.436471, 6.604879, 0), Vector(3.384487, 6.598875, 0), Vector(3.335288, 6.587568, 0), Vector(3.288223, 6.573167, 0), Vector(3.244172, 6.553367, 0), Vector(3.202813, 6.529315, 0), Vector(3.163989, 6.500998, 0), Vector(3.128104, 6.468816, 0), Vector(3.09557, 6.433582, 0), Vector(3.067552, 6.395843, 0), Vector(3.043384, 6.356508, 0), Vector(3.023734, 6.31525, 0), Vector(3.008433, 6.272084, 0), Vector(2.997365, 6.227208, 0), Vector(2.991205, 6.180322, 0), Vector(2.99018, 6.148527, 0), Vector(2.989657, 6.132291, 0)], [4, 1, 1, 1, 1, 1, 1, 1, 1, 1, 1, 1, 1, 1, 1, 1, 4], [0, 1.129588631, 2.206414736, 3.251139165, 4.268635594, 5.265702196, 6.250456724, 7.242448911, 8.251968645, 9.246821453, 10.222880186, 11.173611482, 12.116736599, 13.062300278, 14.020270554, 14.989073742, 16], False, 3, [1, 1, 1, 1, 1, 1, 1, 1, 1, 1, 1, 1, 1, 1, 1, 1, 1, 1, 1], False),  # 38
], False)
sketch2.addConstraint([
    Sketcher.Constraint("Block", 2),
    Sketcher.Constraint("Block", 3),
    Sketcher.Constraint("Block", 4),
    Sketcher.Constraint("Block", 5),
    Sketcher.Constraint("Block", 6),
    Sketcher.Constraint("Block", 8),
    Sketcher.Constraint("Block", 9),
    Sketcher.Constraint("Block", 10),
    Sketcher.Constraint("Block", 11),
    Sketcher.Constraint("Block", 12),
    Sketcher.Constraint("Block", 13),
    Sketcher.Constraint("Block", 14),
    Sketcher.Constraint("Block", 15),
    Sketcher.Constraint("Block", 16),
    Sketcher.Constraint("Block", 17),
    Sketcher.Constraint("Block", 18),
    Sketcher.Constraint("Block", 19),
    Sketcher.Constraint("Block", 20),
    Sketcher.Constraint("Block", 29),
    Sketcher.Constraint("Block", 30),
    Sketcher.Constraint("Block", 31),
    Sketcher.Constraint("Block", 32),
    Sketcher.Constraint("Block", 33),
    Sketcher.Constraint("Block", 35),
    Sketcher.Constraint("Block", 36),
    Sketcher.Constraint("Block", 37),
    Sketcher.Constraint("Block", 38),
    Sketcher.Constraint("Coincident", 0, 2, 1, 1),
    Sketcher.Constraint("Coincident", 1, 2, 2, 2),
    Sketcher.Constraint("Coincident", 6, 1, 7, 1),
    Sketcher.Constraint("Coincident", 7, 2, 0, 1),
    Sketcher.Constraint("Coincident", 21, 2, 22, 1),
    Sketcher.Constraint("Coincident", 22, 2, 23, 1),
    Sketcher.Constraint("Coincident", 23, 2, 24, 1),
    Sketcher.Constraint("Coincident", 24, 2, 25, 1),
    Sketcher.Constraint("Coincident", 25, 2, 26, 1),
    Sketcher.Constraint("Coincident", 26, 2, 21, 1),
    Sketcher.Constraint("Coincident", 27, 2, 28, 1),
    Sketcher.Constraint("Coincident", 28, 2, 29, 2),
    Sketcher.Constraint("Coincident", 33, 1, 34, 1),
    Sketcher.Constraint("Coincident", 34, 2, 27, 1),
    Sketcher.Constraint("Horizontal", 21),
    Sketcher.Constraint("Horizontal", 23),
    Sketcher.Constraint("Vertical", 24),
    Sketcher.Constraint("Horizontal", 25),
    Sketcher.Constraint("Vertical", 26),
    Sketcher.Constraint("DistanceY", 26, 1, 26, 2, Q("0.09375 in")),
    Sketcher.Constraint("DistanceX", 26, 2, 27, 2, Q("0.078125 in")),
    Sketcher.Constraint("DistanceX", 25, 1, 25, 2, Q("0.213702 mm")),
    Sketcher.Constraint("DistanceY", 24, 2, 24, 1, Q("2.137019 mm")),
    Sketcher.Constraint("DistanceX", -1, 1, 23, 2, Q("1.554801 mm")),
    Sketcher.Constraint("DistanceY", 7, 2, 22, 2, Q("2.079301 mm")),
    Sketcher.Constraint("Distance", 27, Q("0.20927 mm")),
    Sketcher.Constraint("Distance", 28, Q("1.298439 mm")),
    Sketcher.Constraint("DistanceX", 21, 2, 21, 1, Q("0.440283 mm")),
    Sketcher.Constraint("DistanceX", 23, 1, 23, 2, Q("0.366346 mm")),
    Sketcher.Constraint("DistanceX", 0, 2, 1, 2, Q("0.733169 mm")),
    Sketcher.Constraint("DistanceX", 7, 2, 0, 2, Q("0.170771 mm")),
    Sketcher.Constraint("DistanceY", 7, 2, 1, 2, Q("0.953549 mm")),
    Sketcher.Constraint("DistanceX", 27, 2, 34, 2, Q("0.16457 mm")),
    Sketcher.Constraint("Distance", 0, Q("0.208016 mm")),
])
pocket1 = body.newObject("PartDesign::Pocket", "Pocket")
pocket1.Profile = sketch2
pocket1.Length = 0.4

doc.recompute()
